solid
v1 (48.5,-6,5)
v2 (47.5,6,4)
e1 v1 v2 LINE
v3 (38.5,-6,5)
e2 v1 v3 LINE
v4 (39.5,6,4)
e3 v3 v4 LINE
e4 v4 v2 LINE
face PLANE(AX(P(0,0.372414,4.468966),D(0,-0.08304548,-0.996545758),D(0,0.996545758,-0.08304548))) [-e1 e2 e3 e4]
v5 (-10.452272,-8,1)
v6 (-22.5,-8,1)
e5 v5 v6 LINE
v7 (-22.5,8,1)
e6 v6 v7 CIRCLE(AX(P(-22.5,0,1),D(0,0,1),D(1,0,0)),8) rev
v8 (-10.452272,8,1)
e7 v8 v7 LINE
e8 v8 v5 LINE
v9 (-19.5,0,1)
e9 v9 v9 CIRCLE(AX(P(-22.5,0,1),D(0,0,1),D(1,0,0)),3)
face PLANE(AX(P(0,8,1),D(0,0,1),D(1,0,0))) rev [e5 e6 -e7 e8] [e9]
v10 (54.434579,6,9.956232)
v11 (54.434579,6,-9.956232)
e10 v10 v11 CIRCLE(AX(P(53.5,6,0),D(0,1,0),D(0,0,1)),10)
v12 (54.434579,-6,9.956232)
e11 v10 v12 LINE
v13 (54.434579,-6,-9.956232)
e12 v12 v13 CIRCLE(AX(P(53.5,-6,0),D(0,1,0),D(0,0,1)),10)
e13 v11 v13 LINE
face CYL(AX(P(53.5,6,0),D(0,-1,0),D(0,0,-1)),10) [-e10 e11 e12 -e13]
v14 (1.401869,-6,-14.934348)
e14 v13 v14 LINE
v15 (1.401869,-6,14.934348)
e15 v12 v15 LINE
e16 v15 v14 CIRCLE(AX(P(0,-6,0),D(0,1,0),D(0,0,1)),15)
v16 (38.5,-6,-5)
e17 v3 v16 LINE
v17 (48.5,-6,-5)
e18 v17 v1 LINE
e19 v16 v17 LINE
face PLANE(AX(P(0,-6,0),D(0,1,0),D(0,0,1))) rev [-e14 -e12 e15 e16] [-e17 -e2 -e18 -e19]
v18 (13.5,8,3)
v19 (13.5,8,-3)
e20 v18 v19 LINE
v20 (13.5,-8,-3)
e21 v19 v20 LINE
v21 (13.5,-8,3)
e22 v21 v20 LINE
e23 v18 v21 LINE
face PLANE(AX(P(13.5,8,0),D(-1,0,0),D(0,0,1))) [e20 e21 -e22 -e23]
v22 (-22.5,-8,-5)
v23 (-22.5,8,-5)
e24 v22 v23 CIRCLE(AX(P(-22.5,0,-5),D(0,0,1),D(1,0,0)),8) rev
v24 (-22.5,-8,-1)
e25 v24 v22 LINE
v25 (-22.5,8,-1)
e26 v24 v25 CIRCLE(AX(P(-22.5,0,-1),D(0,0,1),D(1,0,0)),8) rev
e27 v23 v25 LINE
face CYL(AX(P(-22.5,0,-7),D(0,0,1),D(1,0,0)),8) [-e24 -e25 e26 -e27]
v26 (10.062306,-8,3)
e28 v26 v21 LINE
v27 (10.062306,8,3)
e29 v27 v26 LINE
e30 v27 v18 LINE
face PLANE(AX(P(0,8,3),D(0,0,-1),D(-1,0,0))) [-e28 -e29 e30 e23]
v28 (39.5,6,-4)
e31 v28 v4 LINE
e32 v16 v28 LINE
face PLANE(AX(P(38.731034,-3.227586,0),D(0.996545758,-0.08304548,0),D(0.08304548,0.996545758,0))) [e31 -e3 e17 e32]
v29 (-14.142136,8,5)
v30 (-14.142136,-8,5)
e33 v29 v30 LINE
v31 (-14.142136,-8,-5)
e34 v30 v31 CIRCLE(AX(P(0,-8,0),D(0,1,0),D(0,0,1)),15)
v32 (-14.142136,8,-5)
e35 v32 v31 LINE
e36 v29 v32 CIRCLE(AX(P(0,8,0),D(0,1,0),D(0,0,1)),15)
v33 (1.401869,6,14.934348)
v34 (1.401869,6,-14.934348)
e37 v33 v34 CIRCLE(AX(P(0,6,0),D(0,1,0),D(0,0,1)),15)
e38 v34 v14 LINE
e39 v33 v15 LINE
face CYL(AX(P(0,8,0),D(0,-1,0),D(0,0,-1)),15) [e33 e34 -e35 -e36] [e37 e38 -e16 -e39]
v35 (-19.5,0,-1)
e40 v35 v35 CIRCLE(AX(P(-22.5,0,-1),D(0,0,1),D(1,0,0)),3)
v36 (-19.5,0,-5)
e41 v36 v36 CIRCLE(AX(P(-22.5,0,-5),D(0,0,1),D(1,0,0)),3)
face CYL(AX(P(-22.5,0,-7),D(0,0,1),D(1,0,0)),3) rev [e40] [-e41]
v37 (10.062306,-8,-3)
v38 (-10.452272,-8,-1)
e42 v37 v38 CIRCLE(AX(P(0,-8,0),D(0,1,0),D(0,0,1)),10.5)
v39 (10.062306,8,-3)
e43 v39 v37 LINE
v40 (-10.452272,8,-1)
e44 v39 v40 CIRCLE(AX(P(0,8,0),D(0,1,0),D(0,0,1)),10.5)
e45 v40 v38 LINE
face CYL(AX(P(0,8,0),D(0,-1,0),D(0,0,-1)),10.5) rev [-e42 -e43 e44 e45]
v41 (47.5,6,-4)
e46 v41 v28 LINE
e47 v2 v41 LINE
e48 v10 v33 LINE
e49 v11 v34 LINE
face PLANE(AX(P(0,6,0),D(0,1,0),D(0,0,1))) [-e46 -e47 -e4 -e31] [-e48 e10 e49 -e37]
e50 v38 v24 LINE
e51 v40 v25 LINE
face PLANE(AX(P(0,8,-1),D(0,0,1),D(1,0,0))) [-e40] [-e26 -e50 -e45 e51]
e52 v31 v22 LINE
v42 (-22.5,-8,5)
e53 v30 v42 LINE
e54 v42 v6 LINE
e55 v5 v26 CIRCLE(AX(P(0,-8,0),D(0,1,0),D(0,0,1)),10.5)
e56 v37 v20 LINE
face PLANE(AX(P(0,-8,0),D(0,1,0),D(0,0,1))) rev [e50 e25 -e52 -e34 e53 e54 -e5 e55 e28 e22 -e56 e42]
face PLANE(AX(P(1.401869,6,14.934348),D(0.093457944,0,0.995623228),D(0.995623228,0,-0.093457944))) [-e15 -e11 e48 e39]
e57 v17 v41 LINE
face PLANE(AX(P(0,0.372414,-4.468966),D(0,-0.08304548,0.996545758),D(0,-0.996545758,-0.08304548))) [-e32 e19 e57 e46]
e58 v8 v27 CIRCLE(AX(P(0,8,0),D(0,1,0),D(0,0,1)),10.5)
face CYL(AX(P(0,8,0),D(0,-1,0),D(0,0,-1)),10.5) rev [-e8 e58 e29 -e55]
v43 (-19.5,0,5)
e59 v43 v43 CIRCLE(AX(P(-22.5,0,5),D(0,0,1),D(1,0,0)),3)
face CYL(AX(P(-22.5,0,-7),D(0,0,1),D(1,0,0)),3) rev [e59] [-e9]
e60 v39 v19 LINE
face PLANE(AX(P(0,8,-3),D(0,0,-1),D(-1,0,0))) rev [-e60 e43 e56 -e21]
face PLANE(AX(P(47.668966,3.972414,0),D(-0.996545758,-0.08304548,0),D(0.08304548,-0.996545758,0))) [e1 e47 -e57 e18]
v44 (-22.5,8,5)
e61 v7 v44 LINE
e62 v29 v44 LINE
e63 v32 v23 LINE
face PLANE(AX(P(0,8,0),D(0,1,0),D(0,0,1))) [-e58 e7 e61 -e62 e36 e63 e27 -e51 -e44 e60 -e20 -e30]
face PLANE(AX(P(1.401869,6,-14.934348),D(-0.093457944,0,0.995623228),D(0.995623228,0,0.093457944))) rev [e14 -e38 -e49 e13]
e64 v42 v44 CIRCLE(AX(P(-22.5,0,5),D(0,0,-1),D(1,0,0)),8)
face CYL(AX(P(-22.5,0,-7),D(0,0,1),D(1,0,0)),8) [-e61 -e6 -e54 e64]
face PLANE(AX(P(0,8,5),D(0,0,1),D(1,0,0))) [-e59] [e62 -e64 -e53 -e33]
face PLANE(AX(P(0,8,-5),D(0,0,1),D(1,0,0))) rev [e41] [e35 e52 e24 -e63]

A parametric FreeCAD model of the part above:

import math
import FreeCAD as App
import Part
import Sketcher


def add_polygon(sketch, points):
    """Adds a closed chain of lines whose ends are joined by coincident constraints."""
    first, n = sketch.GeometryCount, len(points)
    for a, b in zip(points, points[1:] + points[:1]):
        sketch.addGeometry(Part.LineSegment(App.Vector(*a, 0), App.Vector(*b, 0)), False)
    for i in range(n):
        sketch.addConstraint(Sketcher.Constraint("Coincident", first + i, 2, first + (i + 1) % n, 1))

doc = App.newDocument("Part")
params = doc.addObject("Spreadsheet::Sheet", "Params")
for row, (alias, value) in enumerate([
    ("sketch1_radius", "15 mm"),
    ("sketch1_radius2", "10.5 mm"),
    ("sketch1_height", "6 mm"),
    ("sketch1_height2", "4 mm"),
    ("pad1_length", "16 mm"),
    ("sketch2_radius", "10 mm"),
    ("sketch2_radius2", "15 mm"),
    ("pad2_length", "12 mm"),
    ("sketch3_diameter", "6 mm"),
    ("sketch3_radius", "8 mm"),
    ("pocket1_length", "12 mm"),
    ("sketch4_width", "10 mm"),
    ("sketch5_width", "8 mm"),
], start=1):
    params.set(f"A{row}", alias)
    params.set(f"B{row}", "=" + value)
    params.setAlias(f"B{row}", alias)

body = doc.addObject("PartDesign::Body", "Body")

# Sketch on XZ plane
sketch1 = doc.addObject("Sketcher::SketchObject", "Sketch")
body.addObject(sketch1)
sketch1.AttachmentSupport = (doc.XZ_Plane, [""])
sketch1.MapMode = "FlatFace"
sketch1.addGeometry([
    Part.ArcOfCircle(Part.Circle(App.Vector(0, 0, 0), App.Vector(0, 0, 1), 10.5), math.radians(-175), math.radians(-17)),  # 0
    Part.LineSegment(App.Vector(10.1, -3, 0), App.Vector(13.5, -3, 0)),  # 1
    Part.LineSegment(App.Vector(13.5, -3, 0), App.Vector(13.5, 3, 0)),  # 2
    Part.LineSegment(App.Vector(13.5, 3, 0), App.Vector(10.1, 3, 0)),  # 3
    Part.ArcOfCircle(Part.Circle(App.Vector(0, 0, 0), App.Vector(0, 0, 1), 10.5), math.radians(17), math.radians(175)),  # 4
    Part.LineSegment(App.Vector(-10.5, 1, 0), App.Vector(-30.5, 1, 0)),  # 5
    Part.LineSegment(App.Vector(-30.5, 1, 0), App.Vector(-30.5, 5, 0)),  # 6
    Part.LineSegment(App.Vector(-30.5, 5, 0), App.Vector(-14.1, 5, 0)),  # 7
    Part.ArcOfCircle(Part.Circle(App.Vector(0, 0, 0), App.Vector(0, 0, 1), 15), math.radians(-161), math.radians(161)),  # 8
    Part.LineSegment(App.Vector(-14.1, -5, 0), App.Vector(-30.5, -5, 0)),  # 9
    Part.LineSegment(App.Vector(-30.5, -5, 0), App.Vector(-30.5, -1, 0)),  # 10
    Part.LineSegment(App.Vector(-30.5, -1, 0), App.Vector(-10.5, -1, 0)),  # 11
], False)
sketch1.addConstraint([
    Sketcher.Constraint("Coincident", 0, 2, 1, 1),
    Sketcher.Constraint("Coincident", 1, 2, 2, 1),
    Sketcher.Constraint("Coincident", 2, 2, 3, 1),
    Sketcher.Constraint("Coincident", 3, 2, 4, 1),
    Sketcher.Constraint("Coincident", 4, 2, 5, 1),
    Sketcher.Constraint("Coincident", 5, 2, 6, 1),
    Sketcher.Constraint("Coincident", 6, 2, 7, 1),
    Sketcher.Constraint("Coincident", 7, 2, 8, 2),
    Sketcher.Constraint("Coincident", 8, 1, 9, 1),
    Sketcher.Constraint("Coincident", 9, 2, 10, 1),
    Sketcher.Constraint("Coincident", 10, 2, 11, 1),
    Sketcher.Constraint("Coincident", 11, 2, 0, 1),
    Sketcher.Constraint("Horizontal", 1),
    Sketcher.Constraint("Vertical", 2),
    Sketcher.Constraint("Horizontal", 3),
    Sketcher.Constraint("Horizontal", 5),
    Sketcher.Constraint("Vertical", 6),
    Sketcher.Constraint("Horizontal", 7),
    Sketcher.Constraint("Horizontal", 9),
    Sketcher.Constraint("Vertical", 10),
    Sketcher.Constraint("Horizontal", 11),
    Sketcher.Constraint("Coincident", 0, 3, -1, 1),
    Sketcher.Constraint("Coincident", 4, 3, -1, 1),
    Sketcher.Constraint("Coincident", 8, 3, -1, 1),
    Sketcher.Constraint("Equal", 0, 4),
    Sketcher.Constraint("Symmetric", 6, 2, 9, 2, -1),
    Sketcher.Constraint("Vertical", 0, 2, 3, 2),
    Sketcher.Constraint("Vertical", 4, 2, 11, 2),
    Sketcher.Constraint("Radius", 8, 15.0),
    Sketcher.Constraint("Radius", 0, 10.5),
    Sketcher.Constraint("DistanceY", 2, 1, 2, 2, 6.0),
    Sketcher.Constraint("DistanceY", 6, 1, 6, 2, 4.0),
    Sketcher.Constraint("DistanceY", -1, 1, 4, 2, 1.0),
    Sketcher.Constraint("DistanceX", -1, 1, 1, 2, 13.5),
    Sketcher.Constraint("DistanceX", 5, 2, -1, 1, 30.5),
])
sketch1.setExpression("Constraints[28]", "Params.sketch1_radius")
sketch1.setExpression("Constraints[29]", "Params.sketch1_radius2")
sketch1.setExpression("Constraints[30]", "Params.sketch1_height")
sketch1.setExpression("Constraints[31]", "Params.sketch1_height2")
pad1 = doc.addObject("PartDesign::Pad", "Pad")
body.addObject(pad1)
pad1.Profile = sketch1
pad1.setExpression("Length", "Params.pad1_length")
pad1.Midplane = True

# Sketch on XZ plane
sketch2 = doc.addObject("Sketcher::SketchObject", "Sketch001")
body.addObject(sketch2)
sketch2.AttachmentSupport = (doc.XZ_Plane, [""])
sketch2.MapMode = "FlatFace"
sketch2.addGeometry([
    Part.ArcOfCircle(Part.Circle(App.Vector(54, 0, 0), App.Vector(0, 0, 1), 10), math.radians(-85), math.radians(85)),
    Part.LineSegment(App.Vector(54, -10, 0), App.Vector(1, -15, 0)),
    Part.ArcOfCircle(Part.Circle(App.Vector(0, 0, 0), App.Vector(0, 0, 1), 15), math.radians(-85), math.radians(85)),
    Part.LineSegment(App.Vector(1, 15, 0), App.Vector(54, 10, 0)),
], False)
sketch2.addConstraint([
    Sketcher.Constraint("Tangent", 0, 1, 1, 1),
    Sketcher.Constraint("Tangent", 1, 2, 2, 1),
    Sketcher.Constraint("Tangent", 2, 2, 3, 1),
    Sketcher.Constraint("Tangent", 3, 2, 0, 2),
    Sketcher.Constraint("Coincident", 2, 3, -1, 1),
    Sketcher.Constraint("PointOnObject", 0, 3, -1),
    Sketcher.Constraint("Radius", 0, 10.0),
    Sketcher.Constraint("Radius", 2, 15.0),
    Sketcher.Constraint("DistanceX", -1, 1, 0, 3, 53.5),
])
sketch2.setExpression("Constraints[6]", "Params.sketch2_radius")
sketch2.setExpression("Constraints[7]", "Params.sketch2_radius2")
pad2 = doc.addObject("PartDesign::Pad", "Pad001")
body.addObject(pad2)
pad2.Profile = sketch2
pad2.setExpression("Length", "Params.pad2_length")
pad2.Midplane = True

# Sketch on XY plane
sketch3 = doc.addObject("Sketcher::SketchObject", "Sketch002")
body.addObject(sketch3)
sketch3.AttachmentSupport = (doc.XY_Plane, [""])
sketch3.MapMode = "FlatFace"
sketch3.AttachmentOffset = App.Placement(App.Vector(0, 0, 5), App.Rotation())
sketch3.addGeometry([
    Part.Circle(App.Vector(-22.5, 0, 0), App.Vector(0, 0, 1), 3),  # 0
    Part.LineSegment(App.Vector(-22.5, 8, 0), App.Vector(-22.5, 10.6, 0)),  # 1
    Part.LineSegment(App.Vector(-22.5, 10.6, 0), App.Vector(-32.3, 10.6, 0)),  # 2
    Part.LineSegment(App.Vector(-32.3, 10.6, 0), App.Vector(-32.3, -9, 0)),  # 3
    Part.LineSegment(App.Vector(-32.3, -9, 0), App.Vector(-22.5, -9, 0)),  # 4
    Part.LineSegment(App.Vector(-22.5, -9, 0), App.Vector(-22.5, -8, 0)),  # 5
    Part.ArcOfCircle(Part.Circle(App.Vector(-22.5, 0, 0), App.Vector(0, 0, 1), 8), math.radians(90), math.radians(270)),  # 6
], False)
sketch3.addConstraint([
    Sketcher.Constraint("Coincident", 1, 2, 2, 1),
    Sketcher.Constraint("Coincident", 2, 2, 3, 1),
    Sketcher.Constraint("Coincident", 3, 2, 4, 1),
    Sketcher.Constraint("Coincident", 4, 2, 5, 1),
    Sketcher.Constraint("Coincident", 5, 2, 6, 2),
    Sketcher.Constraint("Coincident", 6, 1, 1, 1),
    Sketcher.Constraint("Vertical", 1),
    Sketcher.Constraint("Horizontal", 2),
    Sketcher.Constraint("Vertical", 3),
    Sketcher.Constraint("Horizontal", 4),
    Sketcher.Constraint("Vertical", 5),
    Sketcher.Constraint("Coincident", 6, 3, 0, 3),
    Sketcher.Constraint("Symmetric", 5, 2, 6, 1, -1),
    Sketcher.Constraint("Vertical", 6, 3, 1, 2),
    Sketcher.Constraint("Diameter", 0, 6.0),
    Sketcher.Constraint("Radius", 6, 8.0),
    Sketcher.Constraint("DistanceX", 0, 3, -1, 1, 22.5),
    Sketcher.Constraint("DistanceX", 2, 2, 2, 1, 9.766859),
    Sketcher.Constraint("DistanceY", 3, 2, 3, 1, 19.692091),
    Sketcher.Constraint("DistanceY", 1, 1, 1, 2, 2.643527),
])
sketch3.setExpression("Constraints[14]", "Params.sketch3_diameter")
sketch3.setExpression("Constraints[15]", "Params.sketch3_radius")
pocket1 = doc.addObject("PartDesign::Pocket", "Pocket")
body.addObject(pocket1)
pocket1.Profile = sketch3
pocket1.setExpression("Length", "Params.pocket1_length")

# Sketch on XZ plane
sketch4 = doc.addObject("Sketcher::SketchObject", "Sketch003")
body.addObject(sketch4)
sketch4.AttachmentSupport = (doc.XZ_Plane, [""])
sketch4.MapMode = "FlatFace"
sketch4.AttachmentOffset = App.Placement(App.Vector(0, 0, 6), App.Rotation())
add_polygon(sketch4, [(38, -5), (48, -5), (48, 5), (38, 5)])  # lines 0-3
sketch4.addConstraint([
    Sketcher.Constraint("Horizontal", 0),
    Sketcher.Constraint("Vertical", 1),
    Sketcher.Constraint("Horizontal", 2),
    Sketcher.Constraint("Vertical", 3),
    Sketcher.Constraint("Equal", 2, 1),
    Sketcher.Constraint("DistanceX", 0, 1, 0, 2, 10.0),
    Sketcher.Constraint("DistanceY", 0, 2, -1, 1, 5.0),
    Sketcher.Constraint("DistanceX", -1, 1, 0, 2, 48.5),
])
sketch4.setExpression("Constraints[9]", "Params.sketch4_width")

# Sketch on XZ plane
sketch5 = doc.addObject("Sketcher::SketchObject", "Sketch004")
body.addObject(sketch5)
sketch5.AttachmentSupport = (doc.XZ_Plane, [""])
sketch5.MapMode = "FlatFace"
sketch5.AttachmentOffset = App.Placement(App.Vector(0, 0, -6), App.Rotation())
add_polygon(sketch5, [(40, 4), (48, 4), (48, -4), (40, -4)])  # lines 0-3
sketch5.addConstraint([
    Sketcher.Constraint("Horizontal", 0),
    Sketcher.Constraint("Vertical", 1),
    Sketcher.Constraint("Horizontal", 2),
    Sketcher.Constraint("Vertical", 3),
    Sketcher.Constraint("Equal", 2, 1),
    Sketcher.Constraint("DistanceX", 0, 1, 0, 2, 8.0),
    Sketcher.Constraint("DistanceY", -1, 1, 0, 2, 4.0),
    Sketcher.Constraint("DistanceX", -1, 1, 0, 2, 47.5),
])
sketch5.setExpression("Constraints[9]", "Params.sketch5_width")

subtractiveloft = doc.addObject("PartDesign::SubtractiveLoft", "SubtractiveLoft")
body.addObject(subtractiveloft)
subtractiveloft.Profile = sketch4
subtractiveloft.Sections = [sketch5]

doc.recompute()
